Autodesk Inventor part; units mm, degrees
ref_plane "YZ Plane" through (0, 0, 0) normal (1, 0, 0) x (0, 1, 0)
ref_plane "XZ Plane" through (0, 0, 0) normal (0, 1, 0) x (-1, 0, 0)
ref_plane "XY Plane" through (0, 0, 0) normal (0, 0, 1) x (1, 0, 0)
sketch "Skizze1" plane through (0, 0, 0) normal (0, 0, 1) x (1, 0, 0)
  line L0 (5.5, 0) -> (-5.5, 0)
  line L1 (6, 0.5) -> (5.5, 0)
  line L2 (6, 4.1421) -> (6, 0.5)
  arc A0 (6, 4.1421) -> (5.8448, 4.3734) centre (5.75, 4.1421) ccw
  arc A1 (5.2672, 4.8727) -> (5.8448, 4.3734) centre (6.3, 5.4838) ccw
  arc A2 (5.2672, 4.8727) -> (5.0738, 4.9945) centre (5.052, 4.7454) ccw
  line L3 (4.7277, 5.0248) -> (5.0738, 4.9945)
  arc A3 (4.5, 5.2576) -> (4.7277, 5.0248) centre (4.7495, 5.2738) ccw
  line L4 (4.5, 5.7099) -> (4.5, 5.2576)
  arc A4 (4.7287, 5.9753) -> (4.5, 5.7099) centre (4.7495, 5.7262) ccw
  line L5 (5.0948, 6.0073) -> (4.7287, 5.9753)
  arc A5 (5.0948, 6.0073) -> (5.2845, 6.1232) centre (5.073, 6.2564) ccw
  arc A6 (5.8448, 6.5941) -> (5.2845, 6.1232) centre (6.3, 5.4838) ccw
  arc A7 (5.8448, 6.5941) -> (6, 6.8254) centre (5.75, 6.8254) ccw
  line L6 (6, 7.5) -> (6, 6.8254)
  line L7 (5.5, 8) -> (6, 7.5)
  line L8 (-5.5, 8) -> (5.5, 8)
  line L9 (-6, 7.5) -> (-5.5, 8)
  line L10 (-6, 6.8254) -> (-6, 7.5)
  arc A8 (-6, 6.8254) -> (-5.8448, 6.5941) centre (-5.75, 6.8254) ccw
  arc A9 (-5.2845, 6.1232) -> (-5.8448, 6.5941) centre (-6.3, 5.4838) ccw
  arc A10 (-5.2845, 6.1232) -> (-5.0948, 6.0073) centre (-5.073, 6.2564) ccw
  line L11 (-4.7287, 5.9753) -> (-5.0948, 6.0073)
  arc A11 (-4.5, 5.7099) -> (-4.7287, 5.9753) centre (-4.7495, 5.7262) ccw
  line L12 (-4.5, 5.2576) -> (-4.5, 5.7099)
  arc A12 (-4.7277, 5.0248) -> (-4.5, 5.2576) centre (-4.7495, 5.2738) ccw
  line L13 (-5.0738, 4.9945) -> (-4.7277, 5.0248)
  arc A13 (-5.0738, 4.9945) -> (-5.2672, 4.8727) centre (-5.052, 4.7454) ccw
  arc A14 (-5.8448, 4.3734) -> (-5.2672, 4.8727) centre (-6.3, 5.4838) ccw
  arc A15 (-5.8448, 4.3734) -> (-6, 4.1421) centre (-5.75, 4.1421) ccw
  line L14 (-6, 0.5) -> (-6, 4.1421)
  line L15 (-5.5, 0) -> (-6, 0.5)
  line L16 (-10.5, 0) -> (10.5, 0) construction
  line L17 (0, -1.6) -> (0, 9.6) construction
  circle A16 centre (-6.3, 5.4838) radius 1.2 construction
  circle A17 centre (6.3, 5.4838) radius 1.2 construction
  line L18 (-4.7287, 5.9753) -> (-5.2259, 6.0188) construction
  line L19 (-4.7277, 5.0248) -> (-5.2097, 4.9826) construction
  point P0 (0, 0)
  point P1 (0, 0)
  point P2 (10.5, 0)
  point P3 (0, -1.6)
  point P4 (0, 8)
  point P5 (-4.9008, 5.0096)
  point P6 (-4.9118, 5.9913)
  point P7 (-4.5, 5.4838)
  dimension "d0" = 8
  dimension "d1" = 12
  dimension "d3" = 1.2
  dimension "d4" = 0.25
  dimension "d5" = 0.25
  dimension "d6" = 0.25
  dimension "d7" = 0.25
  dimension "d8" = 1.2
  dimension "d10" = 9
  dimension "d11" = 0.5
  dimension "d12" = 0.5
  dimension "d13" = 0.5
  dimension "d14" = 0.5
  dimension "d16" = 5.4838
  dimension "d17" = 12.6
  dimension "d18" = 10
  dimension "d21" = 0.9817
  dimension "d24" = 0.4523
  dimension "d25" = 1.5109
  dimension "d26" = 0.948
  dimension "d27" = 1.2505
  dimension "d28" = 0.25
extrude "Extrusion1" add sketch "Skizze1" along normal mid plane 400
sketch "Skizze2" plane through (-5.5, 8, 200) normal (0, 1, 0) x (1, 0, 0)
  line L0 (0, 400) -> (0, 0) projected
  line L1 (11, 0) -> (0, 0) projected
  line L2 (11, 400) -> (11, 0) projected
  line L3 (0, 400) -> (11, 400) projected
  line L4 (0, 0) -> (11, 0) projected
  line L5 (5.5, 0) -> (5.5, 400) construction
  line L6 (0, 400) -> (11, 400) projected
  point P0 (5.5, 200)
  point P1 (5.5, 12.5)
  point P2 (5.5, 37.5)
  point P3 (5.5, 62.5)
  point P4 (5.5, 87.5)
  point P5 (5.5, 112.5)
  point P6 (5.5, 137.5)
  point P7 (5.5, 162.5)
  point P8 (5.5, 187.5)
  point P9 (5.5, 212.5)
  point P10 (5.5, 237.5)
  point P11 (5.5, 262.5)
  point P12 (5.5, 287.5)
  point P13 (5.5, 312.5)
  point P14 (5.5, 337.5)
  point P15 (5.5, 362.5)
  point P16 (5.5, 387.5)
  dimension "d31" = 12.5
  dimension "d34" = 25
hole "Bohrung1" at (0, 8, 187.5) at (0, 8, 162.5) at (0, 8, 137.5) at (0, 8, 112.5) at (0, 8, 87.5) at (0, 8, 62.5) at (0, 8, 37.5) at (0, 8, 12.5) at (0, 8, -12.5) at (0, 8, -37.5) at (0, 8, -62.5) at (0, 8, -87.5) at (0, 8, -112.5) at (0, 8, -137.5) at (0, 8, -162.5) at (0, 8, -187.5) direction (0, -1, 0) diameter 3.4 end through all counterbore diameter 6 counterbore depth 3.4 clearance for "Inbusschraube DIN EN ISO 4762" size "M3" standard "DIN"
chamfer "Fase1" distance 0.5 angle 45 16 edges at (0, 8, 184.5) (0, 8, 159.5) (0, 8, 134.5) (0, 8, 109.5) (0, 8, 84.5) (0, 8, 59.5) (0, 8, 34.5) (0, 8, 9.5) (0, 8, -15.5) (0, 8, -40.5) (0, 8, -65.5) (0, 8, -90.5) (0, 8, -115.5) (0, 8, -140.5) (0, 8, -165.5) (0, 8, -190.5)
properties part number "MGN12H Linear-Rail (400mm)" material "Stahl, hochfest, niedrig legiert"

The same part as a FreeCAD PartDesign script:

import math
import FreeCAD as App
import Part
import Sketcher

V = App.Vector


def edges_at(feature, points):
    """Names of the edges that pass closest to the given points."""
    edges = feature.Shape.Edges
    near = lambda p: min(range(len(edges)), key=lambda i: edges[i].distToShape(Part.Vertex(*p))[0])
    return sorted({f"Edge{near(p) + 1}" for p in points})

doc = App.newDocument("Part")
body = doc.addObject("PartDesign::Body", "Body")

# Sketch on XY plane
sketch1 = body.newObject("Sketcher::SketchObject", "Sketch")
sketch1.AttachmentSupport = (doc.getObject("XY_Plane"), [""])
sketch1.MapMode = "FlatFace"
sketch1.addGeometry([
    Part.LineSegment(V(-5.5, 0, 0), V(5.5, 0, 0)),  # 0
    Part.LineSegment(V(5.5, 0, 0), V(6, 0.5, 0)),  # 1
    Part.LineSegment(V(6, 0.5, 0), V(6, 4.14, 0)),  # 2
    Part.ArcOfCircle(Part.Circle(V(5.75, 4.14, 0), V(0, 0, 1), 0.25), math.radians(0), math.radians(68)),  # 3
    Part.ArcOfCircle(Part.Circle(V(6.3, 5.48, 0), V(0, 0, 1), 1.2), math.radians(-149), math.radians(-112)),  # 4
    Part.ArcOfCircle(Part.Circle(V(5.05, 4.75, 0), V(0, 0, 1), 0.25), math.radians(31), math.radians(85)),  # 5
    Part.LineSegment(V(5.07, 4.99, 0), V(4.73, 5.02, 0)),  # 6
    Part.ArcOfCircle(Part.Circle(V(4.75, 5.27, 0), V(0, 0, 1), 0.25), math.radians(-176), math.radians(-95)),  # 7
    Part.LineSegment(V(4.5, 5.26, 0), V(4.5, 5.71, 0)),  # 8
    Part.ArcOfCircle(Part.Circle(V(4.75, 5.73, 0), V(0, 0, 1), 0.25), math.radians(95), math.radians(184)),  # 9
    Part.LineSegment(V(4.73, 5.98, 0), V(5.09, 6.01, 0)),  # 10
    Part.ArcOfCircle(Part.Circle(V(5.07, 6.26, 0), V(0, 0, 1), 0.25), math.radians(-85), math.radians(-32)),  # 11
    Part.ArcOfCircle(Part.Circle(V(6.3, 5.48, 0), V(0, 0, 1), 1.2), math.radians(112), math.radians(148)),  # 12
    Part.ArcOfCircle(Part.Circle(V(5.75, 6.83, 0), V(0, 0, 1), 0.25), math.radians(-68), math.radians(0)),  # 13
    Part.LineSegment(V(6, 6.83, 0), V(6, 7.5, 0)),  # 14
    Part.LineSegment(V(6, 7.5, 0), V(5.5, 8, 0)),  # 15
    Part.LineSegment(V(5.5, 8, 0), V(-5.5, 8, 0)),  # 16
    Part.LineSegment(V(-5.5, 8, 0), V(-6, 7.5, 0)),  # 17
    Part.LineSegment(V(-6, 7.5, 0), V(-6, 6.83, 0)),  # 18
    Part.ArcOfCircle(Part.Circle(V(-5.75, 6.83, 0), V(0, 0, 1), 0.25), math.radians(180), math.radians(248)),  # 19
    Part.ArcOfCircle(Part.Circle(V(-6.3, 5.48, 0), V(0, 0, 1), 1.2), math.radians(32), math.radians(68)),  # 20
    Part.ArcOfCircle(Part.Circle(V(-5.07, 6.26, 0), V(0, 0, 1), 0.25), math.radians(-148), math.radians(-95)),  # 21
    Part.LineSegment(V(-5.09, 6.01, 0), V(-4.73, 5.98, 0)),  # 22
    Part.ArcOfCircle(Part.Circle(V(-4.75, 5.73, 0), V(0, 0, 1), 0.25), math.radians(-4), math.radians(85)),  # 23
    Part.LineSegment(V(-4.5, 5.71, 0), V(-4.5, 5.26, 0)),  # 24
    Part.ArcOfCircle(Part.Circle(V(-4.75, 5.27, 0), V(0, 0, 1), 0.25), math.radians(-85), math.radians(-4)),  # 25
    Part.LineSegment(V(-4.73, 5.02, 0), V(-5.07, 4.99, 0)),  # 26
    Part.ArcOfCircle(Part.Circle(V(-5.05, 4.75, 0), V(0, 0, 1), 0.25), math.radians(95), math.radians(149)),  # 27
    Part.ArcOfCircle(Part.Circle(V(-6.3, 5.48, 0), V(0, 0, 1), 1.2), math.radians(-68), math.radians(-31)),  # 28
    Part.ArcOfCircle(Part.Circle(V(-5.75, 4.14, 0), V(0, 0, 1), 0.25), math.radians(112), math.radians(180)),  # 29
    Part.LineSegment(V(-6, 4.14, 0), V(-6, 0.5, 0)),  # 30
    Part.LineSegment(V(-6, 0.5, 0), V(-5.5, 0, 0)),  # 31
], False)
sketch1.addConstraint([
    Sketcher.Constraint("Coincident", 0, 2, 1, 1),
    Sketcher.Constraint("Coincident", 1, 2, 2, 1),
    Sketcher.Constraint("Tangent", 2, 2, 3, 1),
    Sketcher.Constraint("Tangent", 3, 2, 4, 2),
    Sketcher.Constraint("Tangent", 4, 1, 5, 1),
    Sketcher.Constraint("Tangent", 5, 2, 6, 1),
    Sketcher.Constraint("Tangent", 6, 2, 7, 2),
    Sketcher.Constraint("Coincident", 7, 1, 8, 1),
    Sketcher.Constraint("Coincident", 8, 2, 9, 2),
    Sketcher.Constraint("Coincident", 9, 1, 10, 1),
    Sketcher.Constraint("Tangent", 10, 2, 11, 1),
    Sketcher.Constraint("Tangent", 11, 2, 12, 2),
    Sketcher.Constraint("Tangent", 12, 1, 13, 1),
    Sketcher.Constraint("Tangent", 13, 2, 14, 1),
    Sketcher.Constraint("Coincident", 14, 2, 15, 1),
    Sketcher.Constraint("Coincident", 15, 2, 16, 1),
    Sketcher.Constraint("Coincident", 16, 2, 17, 1),
    Sketcher.Constraint("Coincident", 17, 2, 18, 1),
    Sketcher.Constraint("Tangent", 18, 2, 19, 1),
    Sketcher.Constraint("Tangent", 19, 2, 20, 2),
    Sketcher.Constraint("Tangent", 20, 1, 21, 1),
    Sketcher.Constraint("Tangent", 21, 2, 22, 1),
    Sketcher.Constraint("Coincident", 22, 2, 23, 2),
    Sketcher.Constraint("Coincident", 23, 1, 24, 1),
    Sketcher.Constraint("Coincident", 24, 2, 25, 2),
    Sketcher.Constraint("Tangent", 25, 1, 26, 1),
    Sketcher.Constraint("Tangent", 26, 2, 27, 1),
    Sketcher.Constraint("Tangent", 27, 2, 28, 2),
    Sketcher.Constraint("Tangent", 28, 1, 29, 1),
    Sketcher.Constraint("Tangent", 29, 2, 30, 1),
    Sketcher.Constraint("Coincident", 30, 2, 31, 1),
    Sketcher.Constraint("Coincident", 31, 2, 0, 1),
    Sketcher.Constraint("Horizontal", 0),
    Sketcher.Constraint("Vertical", 2),
    Sketcher.Constraint("Vertical", 8),
    Sketcher.Constraint("Vertical", 14),
    Sketcher.Constraint("Horizontal", 16),
    Sketcher.Constraint("Vertical", 18),
    Sketcher.Constraint("Vertical", 24),
    Sketcher.Constraint("Vertical", 30),
    Sketcher.Constraint("Coincident", 12, 3, 4, 3),
    Sketcher.Constraint("Coincident", 28, 3, 20, 3),
    Sketcher.Constraint("Equal", 3, 5),
    Sketcher.Constraint("Equal", 5, 7),
    Sketcher.Constraint("Equal", 7, 9),
    Sketcher.Constraint("Equal", 9, 11),
    Sketcher.Constraint("Equal", 4, 12),
    Sketcher.Constraint("Equal", 11, 13),
    Sketcher.Constraint("Equal", 13, 19),
    Sketcher.Constraint("Equal", 12, 20),
    Sketcher.Constraint("Equal", 19, 21),
    Sketcher.Constraint("Equal", 21, 23),
    Sketcher.Constraint("Equal", 23, 25),
    Sketcher.Constraint("Equal", 25, 27),
    Sketcher.Constraint("Equal", 20, 28),
    Sketcher.Constraint("Equal", 27, 29),
    Sketcher.Constraint("Symmetric", 0, 2, 31, 2, -1, 1),
    Sketcher.Constraint("Symmetric", 13, 3, 19, 3, -2),
    Sketcher.Constraint("Symmetric", 11, 3, 21, 3, -2),
    Sketcher.Constraint("Symmetric", 9, 3, 23, 3, -2),
    Sketcher.Constraint("Symmetric", 7, 3, 25, 3, -2),
    Sketcher.Constraint("Symmetric", 1, 2, 30, 2, -2),
    Sketcher.Constraint("Perpendicular", 1, 15),
    Sketcher.Constraint("Perpendicular", 15, 17),
    Sketcher.Constraint("Parallel", 6, 22),
    Sketcher.Constraint("Parallel", 10, 26),
    Sketcher.Constraint("Perpendicular", 17, 31),
    Sketcher.Constraint("Horizontal", 14, 2, 17, 2),
    Sketcher.Constraint("Horizontal", 9, 1, 22, 2),
    Sketcher.Constraint("Horizontal", 8, 2, 23, 1),
    Sketcher.Constraint("Vertical", 7, 3, 9, 3),
    Sketcher.Constraint("Vertical", 3, 3, 13, 3),
    Sketcher.Constraint("Vertical", 0, 2, 15, 2),
    Sketcher.Constraint("Radius", 4, 1.2),
    Sketcher.Constraint("Radius", 3, 0.25),
    Sketcher.Constraint("DistanceY", -1, 1, 15, 2, 8.0),
    Sketcher.Constraint("DistanceY", -1, 1, 1, 2, 0.5),
    Sketcher.Constraint("DistanceX", 0, 1, 0, 2, 11.0),
    Sketcher.Constraint("DistanceY", 8, 1, 8, 2, 0.4523),
    Sketcher.Constraint("DistanceY", 5, 3, 11, 3, 1.511),
    Sketcher.Constraint("DistanceX", 5, 3, 1, 2, 0.948),
    Sketcher.Constraint("DistanceX", -1, 1, 4, 3, 6.3),
    Sketcher.Constraint("DistanceY", -1, 1, 4, 3, 5.4838),
    Sketcher.Constraint("DistanceX", -1, 1, 7, 1, 4.5),
    Sketcher.Constraint("DistanceX", 7, 3, 1, 2, 1.2505),
    Sketcher.Constraint("DistanceY", 9, 3, 9, 1, 0.249),
])
pad1 = body.newObject("PartDesign::Pad", "Pad")
pad1.Profile = sketch1
pad1.Length = 400
pad1.Midplane = True

# Sketch on XZ plane
sketch2 = body.newObject("Sketcher::SketchObject", "Sketch001")
sketch2.AttachmentSupport = (doc.getObject("XZ_Plane"), [""])
sketch2.MapMode = "FlatFace"
sketch2.AttachmentOffset = App.Placement(V(0, 0, -8), App.Rotation())
sketch2.addGeometry([
    Part.Circle(V(0, 187.5, 0), V(0, 0, 1), 1.7),  # 0
    Part.Circle(V(0, 162.5, 0), V(0, 0, 1), 1.7),  # 1
    Part.Circle(V(0, 137.5, 0), V(0, 0, 1), 1.7),  # 2
    Part.Circle(V(0, 112.5, 0), V(0, 0, 1), 1.7),  # 3
    Part.Circle(V(0, 87.5, 0), V(0, 0, 1), 1.7),  # 4
    Part.Circle(V(0, 62.5, 0), V(0, 0, 1), 1.7),  # 5
    Part.Circle(V(0, 37.5, 0), V(0, 0, 1), 1.7),  # 6
    Part.Circle(V(0, 12.5, 0), V(0, 0, 1), 1.7),  # 7
    Part.Circle(V(0, -12.5, 0), V(0, 0, 1), 1.7),  # 8
    Part.Circle(V(0, -37.5, 0), V(0, 0, 1), 1.7),  # 9
    Part.Circle(V(0, -62.5, 0), V(0, 0, 1), 1.7),  # 10
    Part.Circle(V(0, -87.5, 0), V(0, 0, 1), 1.7),  # 11
    Part.Circle(V(0, -112.5, 0), V(0, 0, 1), 1.7),  # 12
    Part.Circle(V(0, -137.5, 0), V(0, 0, 1), 1.7),  # 13
    Part.Circle(V(0, -162.5, 0), V(0, 0, 1), 1.7),  # 14
    Part.Circle(V(0, -187.5, 0), V(0, 0, 1), 1.7),  # 15
], False)
sketch2.addConstraint([
    Sketcher.Constraint("Equal", 0, 1),
    Sketcher.Constraint("Equal", 1, 2),
    Sketcher.Constraint("Equal", 2, 3),
    Sketcher.Constraint("Equal", 3, 4),
    Sketcher.Constraint("Equal", 4, 5),
    Sketcher.Constraint("Equal", 5, 6),
    Sketcher.Constraint("Equal", 6, 7),
    Sketcher.Constraint("Equal", 7, 8),
    Sketcher.Constraint("Equal", 8, 9),
    Sketcher.Constraint("Equal", 9, 10),
    Sketcher.Constraint("Equal", 10, 11),
    Sketcher.Constraint("Equal", 11, 12),
    Sketcher.Constraint("Equal", 12, 13),
    Sketcher.Constraint("Equal", 13, 14),
    Sketcher.Constraint("Equal", 14, 15),
    Sketcher.Constraint("Symmetric", 7, 3, 8, 3, -1, 1),
    Sketcher.Constraint("Symmetric", 6, 3, 9, 3, -1, 1),
    Sketcher.Constraint("Symmetric", 5, 3, 10, 3, -1, 1),
    Sketcher.Constraint("Symmetric", 4, 3, 11, 3, -1, 1),
    Sketcher.Constraint("Symmetric", 3, 3, 12, 3, -1, 1),
    Sketcher.Constraint("Symmetric", 2, 3, 13, 3, -1, 1),
    Sketcher.Constraint("Symmetric", 1, 3, 14, 3, -1, 1),
    Sketcher.Constraint("Symmetric", 0, 3, 15, 3, -1, 1),
    Sketcher.Constraint("PointOnObject", 0, 3, -2),
    Sketcher.Constraint("PointOnObject", 1, 3, -2),
    Sketcher.Constraint("PointOnObject", 2, 3, -2),
    Sketcher.Constraint("PointOnObject", 3, 3, -2),
    Sketcher.Constraint("PointOnObject", 4, 3, -2),
    Sketcher.Constraint("PointOnObject", 5, 3, -2),
    Sketcher.Constraint("PointOnObject", 6, 3, -2),
    Sketcher.Constraint("PointOnObject", 7, 3, -2),
    Sketcher.Constraint("Diameter", 0, 3.4),
    Sketcher.Constraint("DistanceY", 1, 3, 0, 3, 25.0),
    Sketcher.Constraint("DistanceY", 2, 3, 1, 3, 25.0),
    Sketcher.Constraint("DistanceY", 3, 3, 2, 3, 25.0),
    Sketcher.Constraint("DistanceY", 4, 3, 3, 3, 25.0),
    Sketcher.Constraint("DistanceY", 5, 3, 4, 3, 25.0),
    Sketcher.Constraint("DistanceY", 6, 3, 5, 3, 25.0),
    Sketcher.Constraint("DistanceY", 7, 3, 6, 3, 25.0),
    Sketcher.Constraint("DistanceY", 8, 3, 7, 3, 25.0),
])
doc.recompute()
hole = body.newObject("PartDesign::Hole", "Hole")
hole.Profile = sketch2
hole.ThreadType = "None"
hole.Diameter = 3.4
hole.DepthType = "ThroughAll"
hole.HoleCutType = "Counterbore"
hole.HoleCutDiameter = 6
hole.HoleCutDepth = 3.4
hole.Reversed = True
doc.recompute()

chamfer = body.newObject("PartDesign::Chamfer", "Chamfer")
chamfer.Base = (hole, edges_at(hole, [
    (0, 8, 184.5),
    (0, 8, 159.5),
    (0, 8, 134.5),
    (0, 8, 109.5),
    (0, 8, 84.5),
    (0, 8, 59.5),
    (0, 8, 34.5),
    (0, 8, 9.5),
    (0, 8, -15.5),
    (0, 8, -40.5),
    (0, 8, -65.5),
    (0, 8, -90.5),
    (0, 8, -115.5),
    (0, 8, -140.5),
    (0, 8, -165.5),
    (0, 8, -190.5),
]))
chamfer.Size = 0.5

doc.recompute()
